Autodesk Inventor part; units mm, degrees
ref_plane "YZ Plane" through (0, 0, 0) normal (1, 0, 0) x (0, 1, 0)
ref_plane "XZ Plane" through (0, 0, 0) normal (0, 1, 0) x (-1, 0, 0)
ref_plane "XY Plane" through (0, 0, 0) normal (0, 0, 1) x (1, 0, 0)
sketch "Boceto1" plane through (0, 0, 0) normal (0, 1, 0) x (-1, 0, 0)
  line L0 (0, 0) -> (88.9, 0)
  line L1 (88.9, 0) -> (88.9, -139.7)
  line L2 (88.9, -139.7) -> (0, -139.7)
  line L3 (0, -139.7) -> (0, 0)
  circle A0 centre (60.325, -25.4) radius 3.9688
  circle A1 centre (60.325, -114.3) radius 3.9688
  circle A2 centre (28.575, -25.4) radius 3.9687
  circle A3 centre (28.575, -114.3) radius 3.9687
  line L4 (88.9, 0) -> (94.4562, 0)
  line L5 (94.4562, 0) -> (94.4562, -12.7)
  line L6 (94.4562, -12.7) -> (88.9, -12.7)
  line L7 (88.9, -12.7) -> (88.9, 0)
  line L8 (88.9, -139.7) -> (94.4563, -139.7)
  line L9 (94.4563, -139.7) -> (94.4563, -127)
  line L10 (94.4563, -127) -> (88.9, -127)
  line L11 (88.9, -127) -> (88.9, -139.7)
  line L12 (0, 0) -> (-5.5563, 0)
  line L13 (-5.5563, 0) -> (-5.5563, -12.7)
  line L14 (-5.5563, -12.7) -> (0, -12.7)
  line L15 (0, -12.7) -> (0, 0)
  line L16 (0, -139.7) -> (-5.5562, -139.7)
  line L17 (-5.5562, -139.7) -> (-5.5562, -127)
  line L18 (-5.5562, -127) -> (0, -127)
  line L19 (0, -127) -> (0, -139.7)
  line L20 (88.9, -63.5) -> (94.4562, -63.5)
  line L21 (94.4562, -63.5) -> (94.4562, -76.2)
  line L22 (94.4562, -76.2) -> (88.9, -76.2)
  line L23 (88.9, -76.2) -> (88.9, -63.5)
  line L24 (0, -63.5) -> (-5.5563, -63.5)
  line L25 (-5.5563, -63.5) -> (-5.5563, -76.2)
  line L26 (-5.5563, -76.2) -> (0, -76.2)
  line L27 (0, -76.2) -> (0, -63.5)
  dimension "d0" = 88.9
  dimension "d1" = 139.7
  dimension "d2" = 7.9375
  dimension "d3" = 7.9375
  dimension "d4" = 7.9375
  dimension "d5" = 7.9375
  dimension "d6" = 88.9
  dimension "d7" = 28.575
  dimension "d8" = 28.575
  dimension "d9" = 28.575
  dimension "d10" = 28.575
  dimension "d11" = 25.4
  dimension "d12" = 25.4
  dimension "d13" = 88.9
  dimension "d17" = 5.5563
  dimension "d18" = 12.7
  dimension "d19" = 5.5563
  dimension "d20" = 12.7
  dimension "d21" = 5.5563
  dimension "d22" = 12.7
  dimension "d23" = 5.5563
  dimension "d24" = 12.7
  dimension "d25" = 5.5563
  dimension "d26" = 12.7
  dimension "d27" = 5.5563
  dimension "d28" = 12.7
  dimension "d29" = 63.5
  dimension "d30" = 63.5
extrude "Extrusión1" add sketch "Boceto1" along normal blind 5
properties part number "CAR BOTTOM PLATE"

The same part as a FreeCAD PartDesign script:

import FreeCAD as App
import Part
import Sketcher
from FreeCAD import Vector
Q = App.Units.Quantity


def add_polygon(sketch, points):
    """Adds a closed chain of lines whose ends are joined by coincident constraints."""
    first, n = sketch.GeometryCount, len(points)
    for a, b in zip(points, points[1:] + points[:1]):
        sketch.addGeometry(Part.LineSegment(App.Vector(*a, 0), App.Vector(*b, 0)), False)
    for i in range(n):
        sketch.addConstraint(Sketcher.Constraint("Coincident", first + i, 2, first + (i + 1) % n, 1))

doc = App.newDocument("Part")
body = doc.addObject("PartDesign::Body", "Body")

# Sketch on XZ plane
sketch1 = body.newObject("Sketcher::SketchObject", "Sketch")
sketch1.AttachmentSupport = (doc.getObject("XZ_Plane"), [""])
sketch1.MapMode = "FlatFace"
add_polygon(sketch1, [(5.6, 0), (5.6, -12.7), (0, -12.7), (0, -63.5), (5.6, -63.5), (5.6, -76.2), (0, -76.2), (0, -127), (5.6, -127), (5.6, -139.7), (-94.5, -139.7), (-94.5, -127), (-88.9, -127), (-88.9, -76.2), (-94.5, -76.2), (-94.5, -63.5), (-88.9, -63.5), (-88.9, -12.7), (-94.5, -12.7), (-94.5, 0)])  # lines 0-19
sketch1.addGeometry(Part.Circle(Vector(-28.6, -114.3, 0), Vector(0, 0, 1), 4), False)  # 20
sketch1.addGeometry(Part.Circle(Vector(-60.3, -114.3, 0), Vector(0, 0, 1), 4), False)  # 21
sketch1.addGeometry(Part.Circle(Vector(-28.6, -25.4, 0), Vector(0, 0, 1), 4), False)  # 22
sketch1.addGeometry(Part.Circle(Vector(-60.3, -25.4, 0), Vector(0, 0, 1), 4), False)  # 23
sketch1.addConstraint([
    Sketcher.Constraint("Vertical", 0),
    Sketcher.Constraint("Horizontal", 1),
    Sketcher.Constraint("Vertical", 2),
    Sketcher.Constraint("Horizontal", 3),
    Sketcher.Constraint("Vertical", 4),
    Sketcher.Constraint("Horizontal", 5),
    Sketcher.Constraint("Vertical", 6),
    Sketcher.Constraint("Horizontal", 7),
    Sketcher.Constraint("Vertical", 8),
    Sketcher.Constraint("Horizontal", 9),
    Sketcher.Constraint("Vertical", 10),
    Sketcher.Constraint("Horizontal", 11),
    Sketcher.Constraint("Vertical", 12),
    Sketcher.Constraint("Horizontal", 13),
    Sketcher.Constraint("Vertical", 14),
    Sketcher.Constraint("Horizontal", 15),
    Sketcher.Constraint("Vertical", 16),
    Sketcher.Constraint("Horizontal", 17),
    Sketcher.Constraint("Vertical", 18),
    Sketcher.Constraint("Horizontal", 19),
    Sketcher.Constraint("Equal", 20, 21),
    Sketcher.Constraint("Equal", 21, 22),
    Sketcher.Constraint("Equal", 22, 23),
    Sketcher.Constraint("PointOnObject", 1, 2, -2),
    Sketcher.Constraint("PointOnObject", 5, 2, -2),
    Sketcher.Constraint("PointOnObject", 18, 2, -1),
    Sketcher.Constraint("Horizontal", 20, 3, 21, 3),
    Sketcher.Constraint("Horizontal", 22, 3, 23, 3),
    Sketcher.Constraint("Horizontal", 7, 2, 10, 2),
    Sketcher.Constraint("Horizontal", 5, 2, 12, 2),
    Sketcher.Constraint("Horizontal", 3, 2, 14, 2),
    Sketcher.Constraint("Horizontal", 1, 2, 16, 2),
    Sketcher.Constraint("Vertical", 20, 3, 22, 3),
    Sketcher.Constraint("Vertical", 21, 3, 23, 3),
    Sketcher.Constraint("Vertical", 0, 2, 3, 2),
    Sketcher.Constraint("Vertical", 4, 2, 7, 2),
    Sketcher.Constraint("Vertical", 10, 2, 13, 2),
    Sketcher.Constraint("Vertical", 12, 2, 15, 2),
    Sketcher.Constraint("Vertical", 14, 2, 17, 2),
    Sketcher.Constraint("Equal", 7, 11),
    Sketcher.Constraint("Equal", 0, 4),
    Sketcher.Constraint("Equal", 2, 6),
    Sketcher.Constraint("Equal", 4, 8),
    Sketcher.Constraint("Diameter", 20, Q("0.3125 in")),
    Sketcher.Constraint("DistanceY", 0, 2, 0, 1, Q("0.5 in")),
    Sketcher.Constraint("DistanceY", 22, 3, -1, 1, Q("1 in")),
    Sketcher.Constraint("DistanceY", 8, 2, 20, 3, Q("1 in")),
    Sketcher.Constraint("DistanceY", 2, 2, -1, 1, Q("2.5 in")),
    Sketcher.Constraint("DistanceX", 11, 2, -1, 1, Q("3.5 in")),
    Sketcher.Constraint("DistanceX", 1, 2, 1, 1, Q("0.218752 in")),
    Sketcher.Constraint("DistanceX", 20, 3, -1, 1, Q("1.125 in")),
    Sketcher.Constraint("DistanceX", 11, 2, 21, 3, Q("1.125 in")),
])
pad1 = body.newObject("PartDesign::Pad", "Pad")
pad1.Profile = sketch1
pad1.Length = 5
pad1.Reversed = True

doc.recompute()
